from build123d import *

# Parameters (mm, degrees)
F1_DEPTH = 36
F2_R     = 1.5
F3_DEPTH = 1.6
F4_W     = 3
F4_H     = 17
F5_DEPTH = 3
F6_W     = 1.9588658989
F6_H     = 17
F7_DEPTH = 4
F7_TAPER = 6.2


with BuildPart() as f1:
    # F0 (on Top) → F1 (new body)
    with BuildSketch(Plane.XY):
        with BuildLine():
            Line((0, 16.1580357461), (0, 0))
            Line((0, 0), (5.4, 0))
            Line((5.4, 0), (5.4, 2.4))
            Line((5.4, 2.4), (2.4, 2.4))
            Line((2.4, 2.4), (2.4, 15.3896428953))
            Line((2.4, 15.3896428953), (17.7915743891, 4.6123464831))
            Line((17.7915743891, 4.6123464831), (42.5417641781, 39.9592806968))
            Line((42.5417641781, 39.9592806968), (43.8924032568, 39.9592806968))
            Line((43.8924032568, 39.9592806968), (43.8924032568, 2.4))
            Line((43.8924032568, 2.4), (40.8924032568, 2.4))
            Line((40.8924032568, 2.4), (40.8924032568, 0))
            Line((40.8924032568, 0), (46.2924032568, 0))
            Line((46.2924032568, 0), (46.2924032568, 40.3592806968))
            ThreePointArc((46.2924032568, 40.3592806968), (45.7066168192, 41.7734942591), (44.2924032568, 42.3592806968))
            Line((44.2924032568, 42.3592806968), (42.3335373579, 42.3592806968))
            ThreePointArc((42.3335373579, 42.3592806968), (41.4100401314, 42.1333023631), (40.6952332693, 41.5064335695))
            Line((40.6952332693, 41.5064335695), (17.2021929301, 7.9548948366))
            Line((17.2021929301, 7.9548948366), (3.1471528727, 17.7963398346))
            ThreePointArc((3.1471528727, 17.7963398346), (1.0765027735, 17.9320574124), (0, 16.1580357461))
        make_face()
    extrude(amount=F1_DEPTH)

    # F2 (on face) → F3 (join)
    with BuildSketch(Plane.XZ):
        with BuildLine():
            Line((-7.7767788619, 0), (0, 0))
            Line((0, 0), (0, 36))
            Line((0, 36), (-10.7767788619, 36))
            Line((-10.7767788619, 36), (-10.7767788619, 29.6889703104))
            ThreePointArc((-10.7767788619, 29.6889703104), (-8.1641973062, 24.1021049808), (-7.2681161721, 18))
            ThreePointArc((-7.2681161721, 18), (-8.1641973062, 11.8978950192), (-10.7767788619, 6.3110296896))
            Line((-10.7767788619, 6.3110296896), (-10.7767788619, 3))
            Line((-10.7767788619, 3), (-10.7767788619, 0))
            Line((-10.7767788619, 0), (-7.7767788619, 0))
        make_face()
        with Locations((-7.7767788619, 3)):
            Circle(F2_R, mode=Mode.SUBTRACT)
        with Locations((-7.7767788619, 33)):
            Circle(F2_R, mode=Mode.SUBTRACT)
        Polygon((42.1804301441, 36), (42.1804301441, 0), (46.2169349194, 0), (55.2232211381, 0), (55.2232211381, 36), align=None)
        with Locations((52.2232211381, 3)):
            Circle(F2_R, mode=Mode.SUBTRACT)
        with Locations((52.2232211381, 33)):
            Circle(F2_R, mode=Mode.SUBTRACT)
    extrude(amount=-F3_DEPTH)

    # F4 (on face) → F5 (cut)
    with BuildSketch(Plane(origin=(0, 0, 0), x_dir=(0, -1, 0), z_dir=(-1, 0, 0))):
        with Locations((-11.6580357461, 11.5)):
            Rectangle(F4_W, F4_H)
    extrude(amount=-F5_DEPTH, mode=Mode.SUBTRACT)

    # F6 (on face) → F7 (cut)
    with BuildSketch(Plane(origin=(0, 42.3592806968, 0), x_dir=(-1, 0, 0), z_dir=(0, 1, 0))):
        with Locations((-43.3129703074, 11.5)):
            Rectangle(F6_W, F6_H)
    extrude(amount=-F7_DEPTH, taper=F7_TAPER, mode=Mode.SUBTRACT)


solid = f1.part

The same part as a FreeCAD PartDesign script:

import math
import FreeCAD as App
import Part
import Sketcher

V = App.Vector
Q = App.Units.Quantity

doc = App.newDocument("Part")
body = doc.addObject("PartDesign::Body", "Body")

# Sketch on XY plane
sketch1 = doc.addObject("Sketcher::SketchObject", "Sketch")
body.addObject(sketch1)
sketch1.AttachmentSupport = (doc.XY_Plane, [""])
sketch1.MapMode = "FlatFace"
sketch1.addGeometry(Part.LineSegment(V(0, 16.2, 0), V(0, 0, 0)), False)
sketch1.addGeometry(Part.LineSegment(V(0, 0, 0), V(5.4, 0, 0)), False)
sketch1.addGeometry(Part.LineSegment(V(5.4, 0, 0), V(5.4, 2.4, 0)), False)
sketch1.addGeometry(Part.LineSegment(V(5.4, 2.4, 0), V(2.4, 2.4, 0)), False)
sketch1.addGeometry(Part.LineSegment(V(2.4, 2.4, 0), V(2.4, 15.4, 0)), False)
sketch1.addGeometry(Part.LineSegment(V(2.4, 15.4, 0), V(17.8, 4.6, 0)), False)
sketch1.addGeometry(Part.LineSegment(V(17.8, 4.6, 0), V(42.5, 40, 0)), False)
sketch1.addGeometry(Part.LineSegment(V(42.5, 40, 0), V(43.9, 40, 0)), False)
sketch1.addGeometry(Part.LineSegment(V(43.9, 40, 0), V(43.9, 2.4, 0)), False)
sketch1.addGeometry(Part.LineSegment(V(43.9, 2.4, 0), V(40.9, 2.4, 0)), False)
sketch1.addGeometry(Part.LineSegment(V(40.9, 2.4, 0), V(40.9, 0, 0)), False)
sketch1.addGeometry(Part.LineSegment(V(40.9, 0, 0), V(46.3, 0, 0)), False)
sketch1.addGeometry(Part.LineSegment(V(46.3, 0, 0), V(46.3, 40.4, 0)), False)
sketch1.addGeometry(Part.ArcOfCircle(Part.Circle(V(44.3, 40.4, 0), V(0, 0, 1), 2), math.radians(0), math.radians(90)), False)
sketch1.addGeometry(Part.LineSegment(V(44.3, 42.4, 0), V(42.3, 42.4, 0)), False)
sketch1.addGeometry(Part.ArcOfCircle(Part.Circle(V(42.3, 40.4, 0), V(0, 0, 1), 2), math.radians(90), math.radians(145)), False)
sketch1.addGeometry(Part.LineSegment(V(40.7, 41.5, 0), V(17.2, 8, 0)), False)
sketch1.addGeometry(Part.LineSegment(V(17.2, 8, 0), V(3.1, 17.8, 0)), False)
sketch1.addGeometry(Part.ArcOfCircle(Part.Circle(V(2, 16.2, 0), V(0, 0, 1), 2), math.radians(55), math.radians(180)), False)
sketch1.addConstraint(Sketcher.Constraint("Coincident", 0, 2, 1, 1))
sketch1.addConstraint(Sketcher.Constraint("Coincident", 1, 2, 2, 1))
sketch1.addConstraint(Sketcher.Constraint("Coincident", 2, 2, 3, 1))
sketch1.addConstraint(Sketcher.Constraint("Coincident", 3, 2, 4, 1))
sketch1.addConstraint(Sketcher.Constraint("Coincident", 4, 2, 5, 1))
sketch1.addConstraint(Sketcher.Constraint("Coincident", 5, 2, 6, 1))
sketch1.addConstraint(Sketcher.Constraint("Coincident", 6, 2, 7, 1))
sketch1.addConstraint(Sketcher.Constraint("Coincident", 7, 2, 8, 1))
sketch1.addConstraint(Sketcher.Constraint("Coincident", 8, 2, 9, 1))
sketch1.addConstraint(Sketcher.Constraint("Coincident", 9, 2, 10, 1))
sketch1.addConstraint(Sketcher.Constraint("Coincident", 10, 2, 11, 1))
sketch1.addConstraint(Sketcher.Constraint("Coincident", 11, 2, 12, 1))
sketch1.addConstraint(Sketcher.Constraint("Tangent", 12, 2, 13, 1))
sketch1.addConstraint(Sketcher.Constraint("Tangent", 13, 2, 14, 1))
sketch1.addConstraint(Sketcher.Constraint("Tangent", 14, 2, 15, 1))
sketch1.addConstraint(Sketcher.Constraint("Tangent", 15, 2, 16, 1))
sketch1.addConstraint(Sketcher.Constraint("Coincident", 16, 2, 17, 1))
sketch1.addConstraint(Sketcher.Constraint("Tangent", 17, 2, 18, 1))
sketch1.addConstraint(Sketcher.Constraint("Tangent", 18, 2, 0, 1))
sketch1.addConstraint(Sketcher.Constraint("Vertical", 0))
sketch1.addConstraint(Sketcher.Constraint("Horizontal", 1))
sketch1.addConstraint(Sketcher.Constraint("Vertical", 2))
sketch1.addConstraint(Sketcher.Constraint("Horizontal", 3))
sketch1.addConstraint(Sketcher.Constraint("Vertical", 4))
sketch1.addConstraint(Sketcher.Constraint("Horizontal", 7))
sketch1.addConstraint(Sketcher.Constraint("Vertical", 8))
sketch1.addConstraint(Sketcher.Constraint("Horizontal", 9))
sketch1.addConstraint(Sketcher.Constraint("Vertical", 10))
sketch1.addConstraint(Sketcher.Constraint("Horizontal", 11))
sketch1.addConstraint(Sketcher.Constraint("Vertical", 12))
sketch1.addConstraint(Sketcher.Constraint("Horizontal", 14))
sketch1.addConstraint(Sketcher.Constraint("Coincident", 0, 2, -1, 1))
sketch1.addConstraint(Sketcher.Constraint("Equal", 13, 15))
sketch1.addConstraint(Sketcher.Constraint("Equal", 15, 18))
sketch1.addConstraint(Sketcher.Constraint("PointOnObject", 10, 2, -1))
sketch1.addConstraint(Sketcher.Constraint("Perpendicular", 5, 6))
sketch1.addConstraint(Sketcher.Constraint("Parallel", 6, 16))
sketch1.addConstraint(Sketcher.Constraint("Perpendicular", 16, 17))
sketch1.addConstraint(Sketcher.Constraint("Horizontal", 3, 2, 8, 2))
sketch1.addConstraint(Sketcher.Constraint("Equal", 3, 9))
sketch1.addConstraint(Sketcher.Constraint("Equal", 1, 11))
sketch1.addConstraint(Sketcher.Constraint("Radius", 13, Q("2 mm")))
sketch1.addConstraint(Sketcher.Constraint("DistanceX", 3, 2, 3, 1, Q("3 mm")))
sketch1.addConstraint(Sketcher.Constraint("Angle", 5, Q("-35 deg")))
sketch1.addConstraint(Sketcher.Constraint("DistanceX", 1, 1, 1, 2, Q("5.4 mm")))
sketch1.addConstraint(Sketcher.Constraint("DistanceY", 2, 1, 2, 2, Q("2.4 mm")))
sketch1.addConstraint(Sketcher.Constraint("DistanceY", 6, 2, 15, 3, Q("0.4 mm")))
sketch1.addConstraint(Sketcher.Constraint("DistanceX", 7, 1, 7, 2, Q("1.350639 mm")))
sketch1.addConstraint(Sketcher.Constraint("DistanceY", 8, 2, 8, 1, Q("37.559281 mm")))
sketch1.addConstraint(Sketcher.Constraint("Distance", 6, Q("43.150639 mm")))
sketch1.addConstraint(Sketcher.Constraint("DistanceX", 14, 2, 14, 1, Q("1.958866 mm")))
sketch1.addConstraint(Sketcher.Constraint("DistanceY", 0, 2, 0, 1, Q("16.158036 mm")))
sketch1.addConstraint(Sketcher.Constraint("DistanceY", 4, 1, 4, 2, Q("12.989643 mm")))
pad1 = doc.addObject("PartDesign::Pad", "Pad")
body.addObject(pad1)
pad1.Profile = sketch1
pad1.Length = 36

# Sketch on XZ plane
sketch2 = doc.addObject("Sketcher::SketchObject", "Sketch001")
body.addObject(sketch2)
sketch2.AttachmentSupport = (doc.XZ_Plane, [""])
sketch2.MapMode = "FlatFace"
sketch2.addGeometry(Part.LineSegment(V(0, 0, 0), V(0, 36, 0)), False)
sketch2.addGeometry(Part.LineSegment(V(0, 36, 0), V(-10.8, 36, 0)), False)
sketch2.addGeometry(Part.LineSegment(V(-10.8, 36, 0), V(-10.8, 29.7, 0)), False)
sketch2.addGeometry(Part.ArcOfCircle(Part.Circle(V(-28.5, 18, 0), V(0, 0, 1), 21.2), math.radians(0), math.radians(33)), False)
sketch2.addGeometry(Part.ArcOfCircle(Part.Circle(V(-28.5, 18, 0), V(0, 0, 1), 21.2), math.radians(-33), math.radians(0)), False)
sketch2.addGeometry(Part.LineSegment(V(-10.8, 6.3, 0), V(-10.8, 0, 0)), False)
sketch2.addGeometry(Part.LineSegment(V(-10.8, 0, 0), V(0, 0, 0)), False)
sketch2.addGeometry(Part.Circle(V(-7.8, 3, 0), V(0, 0, 1), 1.5), False)
sketch2.addGeometry(Part.Circle(V(-7.8, 33, 0), V(0, 0, 1), 1.5), False)
sketch2.addGeometry(Part.LineSegment(V(42.2, 36, 0), V(42.2, 0, 0)), False)
sketch2.addGeometry(Part.LineSegment(V(42.2, 0, 0), V(55.2, 0, 0)), False)
sketch2.addGeometry(Part.LineSegment(V(55.2, 0, 0), V(55.2, 36, 0)), False)
sketch2.addGeometry(Part.LineSegment(V(55.2, 36, 0), V(42.2, 36, 0)), False)
sketch2.addGeometry(Part.Circle(V(52.2, 3, 0), V(0, 0, 1), 1.5), False)
sketch2.addGeometry(Part.Circle(V(52.2, 33, 0), V(0, 0, 1), 1.5), False)
sketch2.addConstraint(Sketcher.Constraint("Coincident", 0, 2, 1, 1))
sketch2.addConstraint(Sketcher.Constraint("Coincident", 1, 2, 2, 1))
sketch2.addConstraint(Sketcher.Constraint("Coincident", 2, 2, 3, 2))
sketch2.addConstraint(Sketcher.Constraint("Tangent", 3, 1, 4, 2))
sketch2.addConstraint(Sketcher.Constraint("Coincident", 4, 1, 5, 1))
sketch2.addConstraint(Sketcher.Constraint("Coincident", 5, 2, 6, 1))
sketch2.addConstraint(Sketcher.Constraint("Coincident", 6, 2, 0, 1))
sketch2.addConstraint(Sketcher.Constraint("Coincident", 9, 2, 10, 1))
sketch2.addConstraint(Sketcher.Constraint("Coincident", 10, 2, 11, 1))
sketch2.addConstraint(Sketcher.Constraint("Coincident", 11, 2, 12, 1))
sketch2.addConstraint(Sketcher.Constraint("Coincident", 12, 2, 9, 1))
sketch2.addConstraint(Sketcher.Constraint("Vertical", 0))
sketch2.addConstraint(Sketcher.Constraint("Horizontal", 1))
sketch2.addConstraint(Sketcher.Constraint("Vertical", 2))
sketch2.addConstraint(Sketcher.Constraint("Vertical", 5))
sketch2.addConstraint(Sketcher.Constraint("Horizontal", 6))
sketch2.addConstraint(Sketcher.Constraint("Vertical", 9))
sketch2.addConstraint(Sketcher.Constraint("Horizontal", 10))
sketch2.addConstraint(Sketcher.Constraint("Vertical", 11))
sketch2.addConstraint(Sketcher.Constraint("Horizontal", 12))
sketch2.addConstraint(Sketcher.Constraint("Coincident", 6, 2, -1, 1))
sketch2.addConstraint(Sketcher.Constraint("Equal", 3, 4))
sketch2.addConstraint(Sketcher.Constraint("Equal", 7, 8))
sketch2.addConstraint(Sketcher.Constraint("Equal", 8, 13))
sketch2.addConstraint(Sketcher.Constraint("Equal", 13, 14))
sketch2.addConstraint(Sketcher.Constraint("PointOnObject", 9, 2, -1))
sketch2.addConstraint(Sketcher.Constraint("Horizontal", 7, 3, 13, 3))
sketch2.addConstraint(Sketcher.Constraint("Horizontal", 8, 3, 14, 3))
sketch2.addConstraint(Sketcher.Constraint("Horizontal", 4, 3, 3, 1))
sketch2.addConstraint(Sketcher.Constraint("Horizontal", 1, 2, 11, 2))
sketch2.addConstraint(Sketcher.Constraint("Vertical", 7, 3, 8, 3))
sketch2.addConstraint(Sketcher.Constraint("Vertical", 13, 3, 14, 3))
sketch2.addConstraint(Sketcher.Constraint("Vertical", 2, 2, 4, 1))
sketch2.addConstraint(Sketcher.Constraint("Equal", 2, 5))
sketch2.addConstraint(Sketcher.Constraint("Diameter", 7, Q("3 mm")))
sketch2.addConstraint(Sketcher.Constraint("DistanceY", 0, 1, 0, 2, Q("36 mm")))
sketch2.addConstraint(Sketcher.Constraint("DistanceY", -1, 1, 7, 3, Q("3 mm")))
sketch2.addConstraint(Sketcher.Constraint("DistanceY", -1, 1, 8, 3, Q("33 mm")))
sketch2.addConstraint(Sketcher.Constraint("Radius", 3, Q("21.225001 mm")))
sketch2.addConstraint(Sketcher.Constraint("DistanceX", 7, 3, 13, 3, Q("60 mm")))
sketch2.addConstraint(Sketcher.Constraint("DistanceX", 1, 2, 8, 3, Q("3 mm")))
sketch2.addConstraint(Sketcher.Constraint("DistanceX", 13, 3, 10, 2, Q("3 mm")))
sketch2.addConstraint(Sketcher.Constraint("DistanceX", 1, 2, 1, 1, Q("10.776779 mm")))
sketch2.addConstraint(Sketcher.Constraint("DistanceX", 10, 1, 10, 2, Q("13.042791 mm")))
sketch2.addConstraint(Sketcher.Constraint("DistanceY", 2, 2, 2, 1, Q("6.31103 mm")))
pad2 = doc.addObject("PartDesign::Pad", "Pad001")
body.addObject(pad2)
pad2.Profile = sketch2
pad2.Length = 1.6
pad2.Reversed = True

# Sketch on YZ plane
sketch3 = doc.addObject("Sketcher::SketchObject", "Sketch002")
body.addObject(sketch3)
sketch3.AttachmentSupport = (doc.YZ_Plane, [""])
sketch3.MapMode = "FlatFace"
sketch3.addGeometry(Part.LineSegment(V(13.2, 20, 0), V(13.2, 3, 0)), False)
sketch3.addGeometry(Part.LineSegment(V(13.2, 3, 0), V(10.2, 3, 0)), False)
sketch3.addGeometry(Part.LineSegment(V(10.2, 3, 0), V(10.2, 20, 0)), False)
sketch3.addGeometry(Part.LineSegment(V(10.2, 20, 0), V(13.2, 20, 0)), False)
sketch3.addConstraint(Sketcher.Constraint("Coincident", 0, 2, 1, 1))
sketch3.addConstraint(Sketcher.Constraint("Coincident", 1, 2, 2, 1))
sketch3.addConstraint(Sketcher.Constraint("Coincident", 2, 2, 3, 1))
sketch3.addConstraint(Sketcher.Constraint("Coincident", 3, 2, 0, 1))
sketch3.addConstraint(Sketcher.Constraint("Vertical", 0))
sketch3.addConstraint(Sketcher.Constraint("Horizontal", 1))
sketch3.addConstraint(Sketcher.Constraint("Vertical", 2))
sketch3.addConstraint(Sketcher.Constraint("Horizontal", 3))
sketch3.addConstraint(Sketcher.Constraint("DistanceX", 1, 2, 1, 1, Q("3 mm")))
sketch3.addConstraint(Sketcher.Constraint("DistanceY", 0, 2, 0, 1, Q("17 mm")))
sketch3.addConstraint(Sketcher.Constraint("DistanceY", -1, 1, 0, 2, Q("3 mm")))
sketch3.addConstraint(Sketcher.Constraint("DistanceX", -1, 1, 0, 2, Q("13.158036 mm")))
pocket1 = doc.addObject("PartDesign::Pocket", "Pocket")
body.addObject(pocket1)
pocket1.Profile = sketch3
pocket1.Length = 3
pocket1.Reversed = True

# Sketch on XZ plane
sketch4 = doc.addObject("Sketcher::SketchObject", "Sketch003")
body.addObject(sketch4)
sketch4.AttachmentSupport = (doc.XZ_Plane, [""])
sketch4.MapMode = "FlatFace"
sketch4.AttachmentOffset = App.Placement(V(0, 0, -42.359281), App.Rotation())
sketch4.addGeometry(Part.LineSegment(V(44.3, 20, 0), V(44.3, 3, 0)), False)
sketch4.addGeometry(Part.LineSegment(V(44.3, 3, 0), V(42.3, 3, 0)), False)
sketch4.addGeometry(Part.LineSegment(V(42.3, 3, 0), V(42.3, 20, 0)), False)
sketch4.addGeometry(Part.LineSegment(V(42.3, 20, 0), V(44.3, 20, 0)), False)
sketch4.addConstraint(Sketcher.Constraint("Coincident", 0, 2, 1, 1))
sketch4.addConstraint(Sketcher.Constraint("Coincident", 1, 2, 2, 1))
sketch4.addConstraint(Sketcher.Constraint("Coincident", 2, 2, 3, 1))
sketch4.addConstraint(Sketcher.Constraint("Coincident", 3, 2, 0, 1))
sketch4.addConstraint(Sketcher.Constraint("Vertical", 0))
sketch4.addConstraint(Sketcher.Constraint("Horizontal", 1))
sketch4.addConstraint(Sketcher.Constraint("Vertical", 2))
sketch4.addConstraint(Sketcher.Constraint("Horizontal", 3))
sketch4.addConstraint(Sketcher.Constraint("DistanceY", 0, 2, 0, 1, Q("17 mm")))
sketch4.addConstraint(Sketcher.Constraint("DistanceY", -1, 1, 0, 2, Q("3 mm")))
sketch4.addConstraint(Sketcher.Constraint("DistanceX", 1, 2, 1, 1, Q("1.958866 mm")))
sketch4.addConstraint(Sketcher.Constraint("DistanceX", -1, 1, 0, 2, Q("44.292403 mm")))
pocket2 = doc.addObject("PartDesign::Pocket", "Pocket001")
body.addObject(pocket2)
pocket2.Profile = sketch4
pocket2.Length = 4
pocket2.Reversed = True
pocket2.TaperAngle = -6.2

doc.recompute()
